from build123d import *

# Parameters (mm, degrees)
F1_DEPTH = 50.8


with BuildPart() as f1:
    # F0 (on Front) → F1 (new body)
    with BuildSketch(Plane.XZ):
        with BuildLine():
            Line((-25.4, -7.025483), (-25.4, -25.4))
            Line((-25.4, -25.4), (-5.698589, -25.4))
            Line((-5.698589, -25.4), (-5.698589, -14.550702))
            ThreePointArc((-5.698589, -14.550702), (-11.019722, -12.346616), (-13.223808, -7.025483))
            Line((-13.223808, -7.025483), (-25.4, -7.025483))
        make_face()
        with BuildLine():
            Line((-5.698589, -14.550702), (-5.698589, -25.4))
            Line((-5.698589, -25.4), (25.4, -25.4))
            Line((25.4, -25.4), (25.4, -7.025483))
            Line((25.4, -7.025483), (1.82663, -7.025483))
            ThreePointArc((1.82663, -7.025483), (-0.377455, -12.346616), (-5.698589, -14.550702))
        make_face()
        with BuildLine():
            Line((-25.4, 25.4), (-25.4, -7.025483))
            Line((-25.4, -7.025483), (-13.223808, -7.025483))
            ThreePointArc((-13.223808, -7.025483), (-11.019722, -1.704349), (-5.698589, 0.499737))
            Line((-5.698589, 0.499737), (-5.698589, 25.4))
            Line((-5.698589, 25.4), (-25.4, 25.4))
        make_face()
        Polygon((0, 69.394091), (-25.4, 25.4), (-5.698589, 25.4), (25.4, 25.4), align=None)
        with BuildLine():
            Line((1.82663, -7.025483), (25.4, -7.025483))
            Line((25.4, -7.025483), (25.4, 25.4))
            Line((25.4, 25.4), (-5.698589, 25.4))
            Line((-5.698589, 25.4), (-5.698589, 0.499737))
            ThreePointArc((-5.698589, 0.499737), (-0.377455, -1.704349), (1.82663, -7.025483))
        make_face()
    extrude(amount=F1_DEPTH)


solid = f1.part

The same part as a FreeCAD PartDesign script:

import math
import FreeCAD as App
import Part
import Sketcher
Q = App.Units.Quantity

doc = App.newDocument("Part")
body = doc.addObject("PartDesign::Body", "Body")

sketch1 = body.newObject("Sketcher::SketchObject", "Sketch")
sketch1.AttachmentSupport = (doc.getObject("XZ_Plane"), [""])
sketch1.MapMode = "FlatFace"
sketch1.addGeometry([
    Part.LineSegment(App.Vector(-25, -25, 0), App.Vector(25, -25, 0)),
    Part.LineSegment(App.Vector(25, -25, 0), App.Vector(25, 25, 0)),
    Part.LineSegment(App.Vector(25, 25, 0), App.Vector(0, 69, 0)),
    Part.LineSegment(App.Vector(0, 69, 0), App.Vector(-25, 25, 0)),
    Part.LineSegment(App.Vector(-25, 25, 0), App.Vector(-25, -25, 0)),
    Part.ArcOfCircle(Part.Circle(App.Vector(-6, -7, 0), App.Vector(0, 0, 1), 8), math.radians(-90), math.radians(0)),
    Part.ArcOfCircle(Part.Circle(App.Vector(-6, -7, 0), App.Vector(0, 0, 1), 8), math.radians(-180), math.radians(-90)),
    Part.ArcOfCircle(Part.Circle(App.Vector(-6, -7, 0), App.Vector(0, 0, 1), 8), math.radians(90), math.radians(180)),
    Part.ArcOfCircle(Part.Circle(App.Vector(-6, -7, 0), App.Vector(0, 0, 1), 8), math.radians(0), math.radians(90)),
], False)
sketch1.addConstraint([
    Sketcher.Constraint("Coincident", 0, 2, 1, 1),
    Sketcher.Constraint("Coincident", 1, 2, 2, 1),
    Sketcher.Constraint("Coincident", 2, 2, 3, 1),
    Sketcher.Constraint("Coincident", 3, 2, 4, 1),
    Sketcher.Constraint("Coincident", 4, 2, 0, 1),
    Sketcher.Constraint("Tangent", 5, 1, 6, 2),
    Sketcher.Constraint("Tangent", 6, 1, 7, 2),
    Sketcher.Constraint("Tangent", 7, 1, 8, 2),
    Sketcher.Constraint("Tangent", 8, 1, 5, 2),
    Sketcher.Constraint("Horizontal", 0),
    Sketcher.Constraint("Vertical", 1),
    Sketcher.Constraint("Vertical", 4),
    Sketcher.Constraint("Equal", 5, 6),
    Sketcher.Constraint("Symmetric", 0, 2, 3, 2, -1, 1),
    Sketcher.Constraint("PointOnObject", 2, 2, -2),
    Sketcher.Constraint("Horizontal", 1, 2, 3, 2),
    Sketcher.Constraint("Horizontal", 8, 3, 6, 1),
    Sketcher.Constraint("Horizontal", 6, 1, 8, 1),
    Sketcher.Constraint("Vertical", 8, 3, 5, 1),
    Sketcher.Constraint("Vertical", 5, 1, 7, 1),
    Sketcher.Constraint("Equal", 0, 1),
    Sketcher.Constraint("DistanceX", 0, 1, 0, 2, Q("2 in")),
    Sketcher.Constraint("Distance", 2, Q("2 in")),
    Sketcher.Constraint("Radius", 5, Q("7.525219 mm")),
    Sketcher.Constraint("DistanceY", 5, 1, -1, 1, Q("14.550702 mm")),
    Sketcher.Constraint("DistanceX", 5, 3, -1, 1, Q("5.698589 mm")),
])
pad1 = body.newObject("PartDesign::Pad", "Pad")
pad1.Profile = sketch1
pad1.Length = Q("2 in")

doc.recompute()
